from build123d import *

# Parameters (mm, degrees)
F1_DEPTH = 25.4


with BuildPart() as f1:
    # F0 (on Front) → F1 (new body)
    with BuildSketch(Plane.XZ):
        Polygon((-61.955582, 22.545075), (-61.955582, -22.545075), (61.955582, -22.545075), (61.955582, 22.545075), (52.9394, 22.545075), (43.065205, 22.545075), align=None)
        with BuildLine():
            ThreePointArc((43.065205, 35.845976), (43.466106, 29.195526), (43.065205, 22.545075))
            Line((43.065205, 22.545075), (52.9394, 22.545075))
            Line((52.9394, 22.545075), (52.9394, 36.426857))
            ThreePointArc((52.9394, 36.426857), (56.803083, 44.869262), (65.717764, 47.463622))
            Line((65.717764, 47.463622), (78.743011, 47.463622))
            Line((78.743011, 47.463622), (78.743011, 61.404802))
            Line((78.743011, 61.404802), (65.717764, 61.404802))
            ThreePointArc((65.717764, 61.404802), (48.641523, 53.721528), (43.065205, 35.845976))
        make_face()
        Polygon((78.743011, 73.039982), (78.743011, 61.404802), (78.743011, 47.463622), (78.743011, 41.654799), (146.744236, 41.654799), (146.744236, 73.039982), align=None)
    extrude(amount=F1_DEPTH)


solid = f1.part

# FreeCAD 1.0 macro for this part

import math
import FreeCAD as App
import Part
import Sketcher
from FreeCAD import Vector
Q = App.Units.Quantity

doc = App.newDocument("Part")
body = doc.addObject("PartDesign::Body", "Body")

sketch1 = body.newObject("Sketcher::SketchObject", "Sketch")
sketch1.AttachmentSupport = (doc.getObject("XZ_Plane"), [""])
sketch1.MapMode = "FlatFace"
sketch1.addGeometry(Part.LineSegment(Vector(-62, 23, 0), Vector(-62, -23, 0)), False)
sketch1.addGeometry(Part.LineSegment(Vector(-62, -23, 0), Vector(62, -23, 0)), False)
sketch1.addGeometry(Part.LineSegment(Vector(62, -23, 0), Vector(62, 23, 0)), False)
sketch1.addGeometry(Part.LineSegment(Vector(62, 23, 0), Vector(53, 23, 0)), False)
sketch1.addGeometry(Part.LineSegment(Vector(53, 23, 0), Vector(53, 36, 0)), False)
sketch1.addGeometry(Part.ArcOfCircle(Part.Circle(Vector(64, 36, 0), Vector(0, 0, 1), 11), math.radians(82), math.radians(180)), False)
sketch1.addGeometry(Part.LineSegment(Vector(66, 47, 0), Vector(79, 47, 0)), False)
sketch1.addGeometry(Part.LineSegment(Vector(79, 47, 0), Vector(79, 42, 0)), False)
sketch1.addGeometry(Part.LineSegment(Vector(79, 42, 0), Vector(147, 42, 0)), False)
sketch1.addGeometry(Part.LineSegment(Vector(147, 42, 0), Vector(147, 73, 0)), False)
sketch1.addGeometry(Part.LineSegment(Vector(147, 73, 0), Vector(79, 73, 0)), False)
sketch1.addGeometry(Part.LineSegment(Vector(79, 73, 0), Vector(79, 61, 0)), False)
sketch1.addGeometry(Part.LineSegment(Vector(79, 61, 0), Vector(66, 61, 0)), False)
sketch1.addGeometry(Part.ArcOfCircle(Part.Circle(Vector(66, 39, 0), Vector(0, 0, 1), 23), math.radians(90), math.radians(187)), False)
sketch1.addGeometry(Part.ArcOfCircle(Part.Circle(Vector(-12, 29, 0), Vector(0, 0, 1), 55), math.radians(-6.9), math.radians(6.9)), False)
sketch1.addGeometry(Part.LineSegment(Vector(43, 23, 0), Vector(-62, 23, 0)), False)
sketch1.addConstraint(Sketcher.Constraint("Coincident", 0, 2, 1, 1))
sketch1.addConstraint(Sketcher.Constraint("Coincident", 1, 2, 2, 1))
sketch1.addConstraint(Sketcher.Constraint("Coincident", 2, 2, 3, 1))
sketch1.addConstraint(Sketcher.Constraint("Coincident", 3, 2, 4, 1))
sketch1.addConstraint(Sketcher.Constraint("Tangent", 4, 2, 5, 2))
sketch1.addConstraint(Sketcher.Constraint("Coincident", 5, 1, 6, 1))
sketch1.addConstraint(Sketcher.Constraint("Coincident", 6, 2, 7, 1))
sketch1.addConstraint(Sketcher.Constraint("Coincident", 7, 2, 8, 1))
sketch1.addConstraint(Sketcher.Constraint("Coincident", 8, 2, 9, 1))
sketch1.addConstraint(Sketcher.Constraint("Coincident", 9, 2, 10, 1))
sketch1.addConstraint(Sketcher.Constraint("Coincident", 10, 2, 11, 1))
sketch1.addConstraint(Sketcher.Constraint("Coincident", 11, 2, 12, 1))
sketch1.addConstraint(Sketcher.Constraint("Tangent", 12, 2, 13, 1))
sketch1.addConstraint(Sketcher.Constraint("Tangent", 13, 2, 14, 2))
sketch1.addConstraint(Sketcher.Constraint("Coincident", 14, 1, 15, 1))
sketch1.addConstraint(Sketcher.Constraint("Coincident", 15, 2, 0, 1))
sketch1.addConstraint(Sketcher.Constraint("Vertical", 0))
sketch1.addConstraint(Sketcher.Constraint("Horizontal", 1))
sketch1.addConstraint(Sketcher.Constraint("Vertical", 2))
sketch1.addConstraint(Sketcher.Constraint("Horizontal", 3))
sketch1.addConstraint(Sketcher.Constraint("Vertical", 4))
sketch1.addConstraint(Sketcher.Constraint("Horizontal", 6))
sketch1.addConstraint(Sketcher.Constraint("Vertical", 7))
sketch1.addConstraint(Sketcher.Constraint("Horizontal", 8))
sketch1.addConstraint(Sketcher.Constraint("Vertical", 9))
sketch1.addConstraint(Sketcher.Constraint("Horizontal", 10))
sketch1.addConstraint(Sketcher.Constraint("Vertical", 11))
sketch1.addConstraint(Sketcher.Constraint("Horizontal", 12))
sketch1.addConstraint(Sketcher.Constraint("Horizontal", 15))
sketch1.addConstraint(Sketcher.Constraint("Symmetric", 0, 2, 2, 2, -1, 1))
sketch1.addConstraint(Sketcher.Constraint("Horizontal", 3, 2, 14, 1))
sketch1.addConstraint(Sketcher.Constraint("Vertical", 13, 3, 5, 1))
sketch1.addConstraint(Sketcher.Constraint("Vertical", 7, 2, 10, 2))
sketch1.addConstraint(Sketcher.Constraint("Vertical", 13, 2, 14, 1))
sketch1.addConstraint(Sketcher.Constraint("Radius", 5, Q("11.155448 mm")))
sketch1.addConstraint(Sketcher.Constraint("Radius", 13, Q("22.817794 mm")))
sketch1.addConstraint(Sketcher.Constraint("Radius", 14, Q("55.361814 mm")))
sketch1.addConstraint(Sketcher.Constraint("DistanceY", 0, 2, 0, 1, Q("45.09015 mm")))
sketch1.addConstraint(Sketcher.Constraint("DistanceY", 4, 1, 4, 2, Q("13.881782 mm")))
sketch1.addConstraint(Sketcher.Constraint("DistanceY", 11, 2, 11, 1, Q("11.63518 mm")))
sketch1.addConstraint(Sketcher.Constraint("DistanceX", -1, 1, 3, 2, Q("52.9394 mm")))
sketch1.addConstraint(Sketcher.Constraint("DistanceY", -1, 1, 7, 2, Q("41.654799 mm")))
sketch1.addConstraint(Sketcher.Constraint("DistanceY", -1, 1, 11, 2, Q("61.404802 mm")))
sketch1.addConstraint(Sketcher.Constraint("DistanceX", 1, 1, 1, 2, Q("123.911164 mm")))
sketch1.addConstraint(Sketcher.Constraint("DistanceX", 6, 1, 6, 2, Q("13.025247 mm")))
sketch1.addConstraint(Sketcher.Constraint("DistanceX", 8, 1, 8, 2, Q("68.001225 mm")))
sketch1.addConstraint(Sketcher.Constraint("DistanceX", 15, 2, 15, 1, Q("105.020787 mm")))
pad1 = body.newObject("PartDesign::Pad", "Pad")
pad1.Profile = sketch1
pad1.Length = Q("1 in")

doc.recompute()
